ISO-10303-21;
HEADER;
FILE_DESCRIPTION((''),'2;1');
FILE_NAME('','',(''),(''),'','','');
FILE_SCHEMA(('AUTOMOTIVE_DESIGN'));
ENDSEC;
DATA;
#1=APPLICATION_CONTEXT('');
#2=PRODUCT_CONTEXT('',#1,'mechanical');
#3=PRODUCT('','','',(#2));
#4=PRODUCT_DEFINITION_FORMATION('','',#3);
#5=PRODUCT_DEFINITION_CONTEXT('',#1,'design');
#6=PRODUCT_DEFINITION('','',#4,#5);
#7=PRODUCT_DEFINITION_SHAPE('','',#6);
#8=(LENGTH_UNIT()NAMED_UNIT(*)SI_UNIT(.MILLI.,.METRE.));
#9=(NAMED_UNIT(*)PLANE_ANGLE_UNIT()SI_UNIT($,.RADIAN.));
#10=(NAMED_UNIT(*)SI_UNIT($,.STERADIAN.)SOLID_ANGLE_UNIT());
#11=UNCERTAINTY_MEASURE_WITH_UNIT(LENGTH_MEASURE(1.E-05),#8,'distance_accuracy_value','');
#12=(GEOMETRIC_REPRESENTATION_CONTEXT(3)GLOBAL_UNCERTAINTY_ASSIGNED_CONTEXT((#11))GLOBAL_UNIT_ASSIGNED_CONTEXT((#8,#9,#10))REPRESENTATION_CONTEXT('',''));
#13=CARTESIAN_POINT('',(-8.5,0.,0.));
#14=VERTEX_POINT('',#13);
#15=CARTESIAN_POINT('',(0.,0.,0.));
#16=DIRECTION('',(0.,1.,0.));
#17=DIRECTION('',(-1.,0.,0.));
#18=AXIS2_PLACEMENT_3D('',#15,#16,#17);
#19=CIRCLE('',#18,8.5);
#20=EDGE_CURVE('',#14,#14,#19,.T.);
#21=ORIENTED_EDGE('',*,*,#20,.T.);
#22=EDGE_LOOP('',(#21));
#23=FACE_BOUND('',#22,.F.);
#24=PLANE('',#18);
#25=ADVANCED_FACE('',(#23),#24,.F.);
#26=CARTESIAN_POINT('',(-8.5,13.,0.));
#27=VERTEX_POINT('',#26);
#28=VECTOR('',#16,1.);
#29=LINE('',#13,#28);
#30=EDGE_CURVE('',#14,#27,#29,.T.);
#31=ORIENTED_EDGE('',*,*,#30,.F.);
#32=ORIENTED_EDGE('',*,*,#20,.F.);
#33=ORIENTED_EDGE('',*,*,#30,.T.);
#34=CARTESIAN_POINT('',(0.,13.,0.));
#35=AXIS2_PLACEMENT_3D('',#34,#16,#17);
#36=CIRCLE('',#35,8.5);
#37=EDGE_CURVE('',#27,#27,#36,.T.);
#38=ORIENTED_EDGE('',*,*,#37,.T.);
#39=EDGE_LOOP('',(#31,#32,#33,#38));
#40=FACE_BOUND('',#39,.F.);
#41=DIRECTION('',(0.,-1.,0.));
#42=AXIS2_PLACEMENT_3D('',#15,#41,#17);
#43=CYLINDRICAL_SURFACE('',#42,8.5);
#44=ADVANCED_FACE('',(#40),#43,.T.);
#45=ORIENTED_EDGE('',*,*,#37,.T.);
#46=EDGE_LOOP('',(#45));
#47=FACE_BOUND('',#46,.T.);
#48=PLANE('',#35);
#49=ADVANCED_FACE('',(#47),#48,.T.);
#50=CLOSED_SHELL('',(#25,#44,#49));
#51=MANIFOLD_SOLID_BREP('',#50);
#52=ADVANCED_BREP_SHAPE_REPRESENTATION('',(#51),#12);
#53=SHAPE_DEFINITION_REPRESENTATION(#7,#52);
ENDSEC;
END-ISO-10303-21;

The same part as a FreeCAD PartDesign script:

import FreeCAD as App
import Part
import Sketcher

V = App.Vector
Q = App.Units.Quantity

doc = App.newDocument("Part")
body = doc.addObject("PartDesign::Body", "Body")

sketch1 = body.newObject("Sketcher::SketchObject", "Sketch")
sketch1.AttachmentSupport = (doc.getObject("XZ_Plane"), [""])
sketch1.MapMode = "FlatFace"
sketch1.addGeometry(Part.Circle(V(0, 0, 0), V(0, 0, 1), 8), False)
sketch1.addConstraint([
    Sketcher.Constraint("Coincident", 0, 3, -1, 1),
    Sketcher.Constraint("Diameter", 0, Q("17 mm")),
])
pad1 = body.newObject("PartDesign::Pad", "Pad")
pad1.Profile = sketch1
pad1.Length = 13
pad1.Reversed = True

doc.recompute()
